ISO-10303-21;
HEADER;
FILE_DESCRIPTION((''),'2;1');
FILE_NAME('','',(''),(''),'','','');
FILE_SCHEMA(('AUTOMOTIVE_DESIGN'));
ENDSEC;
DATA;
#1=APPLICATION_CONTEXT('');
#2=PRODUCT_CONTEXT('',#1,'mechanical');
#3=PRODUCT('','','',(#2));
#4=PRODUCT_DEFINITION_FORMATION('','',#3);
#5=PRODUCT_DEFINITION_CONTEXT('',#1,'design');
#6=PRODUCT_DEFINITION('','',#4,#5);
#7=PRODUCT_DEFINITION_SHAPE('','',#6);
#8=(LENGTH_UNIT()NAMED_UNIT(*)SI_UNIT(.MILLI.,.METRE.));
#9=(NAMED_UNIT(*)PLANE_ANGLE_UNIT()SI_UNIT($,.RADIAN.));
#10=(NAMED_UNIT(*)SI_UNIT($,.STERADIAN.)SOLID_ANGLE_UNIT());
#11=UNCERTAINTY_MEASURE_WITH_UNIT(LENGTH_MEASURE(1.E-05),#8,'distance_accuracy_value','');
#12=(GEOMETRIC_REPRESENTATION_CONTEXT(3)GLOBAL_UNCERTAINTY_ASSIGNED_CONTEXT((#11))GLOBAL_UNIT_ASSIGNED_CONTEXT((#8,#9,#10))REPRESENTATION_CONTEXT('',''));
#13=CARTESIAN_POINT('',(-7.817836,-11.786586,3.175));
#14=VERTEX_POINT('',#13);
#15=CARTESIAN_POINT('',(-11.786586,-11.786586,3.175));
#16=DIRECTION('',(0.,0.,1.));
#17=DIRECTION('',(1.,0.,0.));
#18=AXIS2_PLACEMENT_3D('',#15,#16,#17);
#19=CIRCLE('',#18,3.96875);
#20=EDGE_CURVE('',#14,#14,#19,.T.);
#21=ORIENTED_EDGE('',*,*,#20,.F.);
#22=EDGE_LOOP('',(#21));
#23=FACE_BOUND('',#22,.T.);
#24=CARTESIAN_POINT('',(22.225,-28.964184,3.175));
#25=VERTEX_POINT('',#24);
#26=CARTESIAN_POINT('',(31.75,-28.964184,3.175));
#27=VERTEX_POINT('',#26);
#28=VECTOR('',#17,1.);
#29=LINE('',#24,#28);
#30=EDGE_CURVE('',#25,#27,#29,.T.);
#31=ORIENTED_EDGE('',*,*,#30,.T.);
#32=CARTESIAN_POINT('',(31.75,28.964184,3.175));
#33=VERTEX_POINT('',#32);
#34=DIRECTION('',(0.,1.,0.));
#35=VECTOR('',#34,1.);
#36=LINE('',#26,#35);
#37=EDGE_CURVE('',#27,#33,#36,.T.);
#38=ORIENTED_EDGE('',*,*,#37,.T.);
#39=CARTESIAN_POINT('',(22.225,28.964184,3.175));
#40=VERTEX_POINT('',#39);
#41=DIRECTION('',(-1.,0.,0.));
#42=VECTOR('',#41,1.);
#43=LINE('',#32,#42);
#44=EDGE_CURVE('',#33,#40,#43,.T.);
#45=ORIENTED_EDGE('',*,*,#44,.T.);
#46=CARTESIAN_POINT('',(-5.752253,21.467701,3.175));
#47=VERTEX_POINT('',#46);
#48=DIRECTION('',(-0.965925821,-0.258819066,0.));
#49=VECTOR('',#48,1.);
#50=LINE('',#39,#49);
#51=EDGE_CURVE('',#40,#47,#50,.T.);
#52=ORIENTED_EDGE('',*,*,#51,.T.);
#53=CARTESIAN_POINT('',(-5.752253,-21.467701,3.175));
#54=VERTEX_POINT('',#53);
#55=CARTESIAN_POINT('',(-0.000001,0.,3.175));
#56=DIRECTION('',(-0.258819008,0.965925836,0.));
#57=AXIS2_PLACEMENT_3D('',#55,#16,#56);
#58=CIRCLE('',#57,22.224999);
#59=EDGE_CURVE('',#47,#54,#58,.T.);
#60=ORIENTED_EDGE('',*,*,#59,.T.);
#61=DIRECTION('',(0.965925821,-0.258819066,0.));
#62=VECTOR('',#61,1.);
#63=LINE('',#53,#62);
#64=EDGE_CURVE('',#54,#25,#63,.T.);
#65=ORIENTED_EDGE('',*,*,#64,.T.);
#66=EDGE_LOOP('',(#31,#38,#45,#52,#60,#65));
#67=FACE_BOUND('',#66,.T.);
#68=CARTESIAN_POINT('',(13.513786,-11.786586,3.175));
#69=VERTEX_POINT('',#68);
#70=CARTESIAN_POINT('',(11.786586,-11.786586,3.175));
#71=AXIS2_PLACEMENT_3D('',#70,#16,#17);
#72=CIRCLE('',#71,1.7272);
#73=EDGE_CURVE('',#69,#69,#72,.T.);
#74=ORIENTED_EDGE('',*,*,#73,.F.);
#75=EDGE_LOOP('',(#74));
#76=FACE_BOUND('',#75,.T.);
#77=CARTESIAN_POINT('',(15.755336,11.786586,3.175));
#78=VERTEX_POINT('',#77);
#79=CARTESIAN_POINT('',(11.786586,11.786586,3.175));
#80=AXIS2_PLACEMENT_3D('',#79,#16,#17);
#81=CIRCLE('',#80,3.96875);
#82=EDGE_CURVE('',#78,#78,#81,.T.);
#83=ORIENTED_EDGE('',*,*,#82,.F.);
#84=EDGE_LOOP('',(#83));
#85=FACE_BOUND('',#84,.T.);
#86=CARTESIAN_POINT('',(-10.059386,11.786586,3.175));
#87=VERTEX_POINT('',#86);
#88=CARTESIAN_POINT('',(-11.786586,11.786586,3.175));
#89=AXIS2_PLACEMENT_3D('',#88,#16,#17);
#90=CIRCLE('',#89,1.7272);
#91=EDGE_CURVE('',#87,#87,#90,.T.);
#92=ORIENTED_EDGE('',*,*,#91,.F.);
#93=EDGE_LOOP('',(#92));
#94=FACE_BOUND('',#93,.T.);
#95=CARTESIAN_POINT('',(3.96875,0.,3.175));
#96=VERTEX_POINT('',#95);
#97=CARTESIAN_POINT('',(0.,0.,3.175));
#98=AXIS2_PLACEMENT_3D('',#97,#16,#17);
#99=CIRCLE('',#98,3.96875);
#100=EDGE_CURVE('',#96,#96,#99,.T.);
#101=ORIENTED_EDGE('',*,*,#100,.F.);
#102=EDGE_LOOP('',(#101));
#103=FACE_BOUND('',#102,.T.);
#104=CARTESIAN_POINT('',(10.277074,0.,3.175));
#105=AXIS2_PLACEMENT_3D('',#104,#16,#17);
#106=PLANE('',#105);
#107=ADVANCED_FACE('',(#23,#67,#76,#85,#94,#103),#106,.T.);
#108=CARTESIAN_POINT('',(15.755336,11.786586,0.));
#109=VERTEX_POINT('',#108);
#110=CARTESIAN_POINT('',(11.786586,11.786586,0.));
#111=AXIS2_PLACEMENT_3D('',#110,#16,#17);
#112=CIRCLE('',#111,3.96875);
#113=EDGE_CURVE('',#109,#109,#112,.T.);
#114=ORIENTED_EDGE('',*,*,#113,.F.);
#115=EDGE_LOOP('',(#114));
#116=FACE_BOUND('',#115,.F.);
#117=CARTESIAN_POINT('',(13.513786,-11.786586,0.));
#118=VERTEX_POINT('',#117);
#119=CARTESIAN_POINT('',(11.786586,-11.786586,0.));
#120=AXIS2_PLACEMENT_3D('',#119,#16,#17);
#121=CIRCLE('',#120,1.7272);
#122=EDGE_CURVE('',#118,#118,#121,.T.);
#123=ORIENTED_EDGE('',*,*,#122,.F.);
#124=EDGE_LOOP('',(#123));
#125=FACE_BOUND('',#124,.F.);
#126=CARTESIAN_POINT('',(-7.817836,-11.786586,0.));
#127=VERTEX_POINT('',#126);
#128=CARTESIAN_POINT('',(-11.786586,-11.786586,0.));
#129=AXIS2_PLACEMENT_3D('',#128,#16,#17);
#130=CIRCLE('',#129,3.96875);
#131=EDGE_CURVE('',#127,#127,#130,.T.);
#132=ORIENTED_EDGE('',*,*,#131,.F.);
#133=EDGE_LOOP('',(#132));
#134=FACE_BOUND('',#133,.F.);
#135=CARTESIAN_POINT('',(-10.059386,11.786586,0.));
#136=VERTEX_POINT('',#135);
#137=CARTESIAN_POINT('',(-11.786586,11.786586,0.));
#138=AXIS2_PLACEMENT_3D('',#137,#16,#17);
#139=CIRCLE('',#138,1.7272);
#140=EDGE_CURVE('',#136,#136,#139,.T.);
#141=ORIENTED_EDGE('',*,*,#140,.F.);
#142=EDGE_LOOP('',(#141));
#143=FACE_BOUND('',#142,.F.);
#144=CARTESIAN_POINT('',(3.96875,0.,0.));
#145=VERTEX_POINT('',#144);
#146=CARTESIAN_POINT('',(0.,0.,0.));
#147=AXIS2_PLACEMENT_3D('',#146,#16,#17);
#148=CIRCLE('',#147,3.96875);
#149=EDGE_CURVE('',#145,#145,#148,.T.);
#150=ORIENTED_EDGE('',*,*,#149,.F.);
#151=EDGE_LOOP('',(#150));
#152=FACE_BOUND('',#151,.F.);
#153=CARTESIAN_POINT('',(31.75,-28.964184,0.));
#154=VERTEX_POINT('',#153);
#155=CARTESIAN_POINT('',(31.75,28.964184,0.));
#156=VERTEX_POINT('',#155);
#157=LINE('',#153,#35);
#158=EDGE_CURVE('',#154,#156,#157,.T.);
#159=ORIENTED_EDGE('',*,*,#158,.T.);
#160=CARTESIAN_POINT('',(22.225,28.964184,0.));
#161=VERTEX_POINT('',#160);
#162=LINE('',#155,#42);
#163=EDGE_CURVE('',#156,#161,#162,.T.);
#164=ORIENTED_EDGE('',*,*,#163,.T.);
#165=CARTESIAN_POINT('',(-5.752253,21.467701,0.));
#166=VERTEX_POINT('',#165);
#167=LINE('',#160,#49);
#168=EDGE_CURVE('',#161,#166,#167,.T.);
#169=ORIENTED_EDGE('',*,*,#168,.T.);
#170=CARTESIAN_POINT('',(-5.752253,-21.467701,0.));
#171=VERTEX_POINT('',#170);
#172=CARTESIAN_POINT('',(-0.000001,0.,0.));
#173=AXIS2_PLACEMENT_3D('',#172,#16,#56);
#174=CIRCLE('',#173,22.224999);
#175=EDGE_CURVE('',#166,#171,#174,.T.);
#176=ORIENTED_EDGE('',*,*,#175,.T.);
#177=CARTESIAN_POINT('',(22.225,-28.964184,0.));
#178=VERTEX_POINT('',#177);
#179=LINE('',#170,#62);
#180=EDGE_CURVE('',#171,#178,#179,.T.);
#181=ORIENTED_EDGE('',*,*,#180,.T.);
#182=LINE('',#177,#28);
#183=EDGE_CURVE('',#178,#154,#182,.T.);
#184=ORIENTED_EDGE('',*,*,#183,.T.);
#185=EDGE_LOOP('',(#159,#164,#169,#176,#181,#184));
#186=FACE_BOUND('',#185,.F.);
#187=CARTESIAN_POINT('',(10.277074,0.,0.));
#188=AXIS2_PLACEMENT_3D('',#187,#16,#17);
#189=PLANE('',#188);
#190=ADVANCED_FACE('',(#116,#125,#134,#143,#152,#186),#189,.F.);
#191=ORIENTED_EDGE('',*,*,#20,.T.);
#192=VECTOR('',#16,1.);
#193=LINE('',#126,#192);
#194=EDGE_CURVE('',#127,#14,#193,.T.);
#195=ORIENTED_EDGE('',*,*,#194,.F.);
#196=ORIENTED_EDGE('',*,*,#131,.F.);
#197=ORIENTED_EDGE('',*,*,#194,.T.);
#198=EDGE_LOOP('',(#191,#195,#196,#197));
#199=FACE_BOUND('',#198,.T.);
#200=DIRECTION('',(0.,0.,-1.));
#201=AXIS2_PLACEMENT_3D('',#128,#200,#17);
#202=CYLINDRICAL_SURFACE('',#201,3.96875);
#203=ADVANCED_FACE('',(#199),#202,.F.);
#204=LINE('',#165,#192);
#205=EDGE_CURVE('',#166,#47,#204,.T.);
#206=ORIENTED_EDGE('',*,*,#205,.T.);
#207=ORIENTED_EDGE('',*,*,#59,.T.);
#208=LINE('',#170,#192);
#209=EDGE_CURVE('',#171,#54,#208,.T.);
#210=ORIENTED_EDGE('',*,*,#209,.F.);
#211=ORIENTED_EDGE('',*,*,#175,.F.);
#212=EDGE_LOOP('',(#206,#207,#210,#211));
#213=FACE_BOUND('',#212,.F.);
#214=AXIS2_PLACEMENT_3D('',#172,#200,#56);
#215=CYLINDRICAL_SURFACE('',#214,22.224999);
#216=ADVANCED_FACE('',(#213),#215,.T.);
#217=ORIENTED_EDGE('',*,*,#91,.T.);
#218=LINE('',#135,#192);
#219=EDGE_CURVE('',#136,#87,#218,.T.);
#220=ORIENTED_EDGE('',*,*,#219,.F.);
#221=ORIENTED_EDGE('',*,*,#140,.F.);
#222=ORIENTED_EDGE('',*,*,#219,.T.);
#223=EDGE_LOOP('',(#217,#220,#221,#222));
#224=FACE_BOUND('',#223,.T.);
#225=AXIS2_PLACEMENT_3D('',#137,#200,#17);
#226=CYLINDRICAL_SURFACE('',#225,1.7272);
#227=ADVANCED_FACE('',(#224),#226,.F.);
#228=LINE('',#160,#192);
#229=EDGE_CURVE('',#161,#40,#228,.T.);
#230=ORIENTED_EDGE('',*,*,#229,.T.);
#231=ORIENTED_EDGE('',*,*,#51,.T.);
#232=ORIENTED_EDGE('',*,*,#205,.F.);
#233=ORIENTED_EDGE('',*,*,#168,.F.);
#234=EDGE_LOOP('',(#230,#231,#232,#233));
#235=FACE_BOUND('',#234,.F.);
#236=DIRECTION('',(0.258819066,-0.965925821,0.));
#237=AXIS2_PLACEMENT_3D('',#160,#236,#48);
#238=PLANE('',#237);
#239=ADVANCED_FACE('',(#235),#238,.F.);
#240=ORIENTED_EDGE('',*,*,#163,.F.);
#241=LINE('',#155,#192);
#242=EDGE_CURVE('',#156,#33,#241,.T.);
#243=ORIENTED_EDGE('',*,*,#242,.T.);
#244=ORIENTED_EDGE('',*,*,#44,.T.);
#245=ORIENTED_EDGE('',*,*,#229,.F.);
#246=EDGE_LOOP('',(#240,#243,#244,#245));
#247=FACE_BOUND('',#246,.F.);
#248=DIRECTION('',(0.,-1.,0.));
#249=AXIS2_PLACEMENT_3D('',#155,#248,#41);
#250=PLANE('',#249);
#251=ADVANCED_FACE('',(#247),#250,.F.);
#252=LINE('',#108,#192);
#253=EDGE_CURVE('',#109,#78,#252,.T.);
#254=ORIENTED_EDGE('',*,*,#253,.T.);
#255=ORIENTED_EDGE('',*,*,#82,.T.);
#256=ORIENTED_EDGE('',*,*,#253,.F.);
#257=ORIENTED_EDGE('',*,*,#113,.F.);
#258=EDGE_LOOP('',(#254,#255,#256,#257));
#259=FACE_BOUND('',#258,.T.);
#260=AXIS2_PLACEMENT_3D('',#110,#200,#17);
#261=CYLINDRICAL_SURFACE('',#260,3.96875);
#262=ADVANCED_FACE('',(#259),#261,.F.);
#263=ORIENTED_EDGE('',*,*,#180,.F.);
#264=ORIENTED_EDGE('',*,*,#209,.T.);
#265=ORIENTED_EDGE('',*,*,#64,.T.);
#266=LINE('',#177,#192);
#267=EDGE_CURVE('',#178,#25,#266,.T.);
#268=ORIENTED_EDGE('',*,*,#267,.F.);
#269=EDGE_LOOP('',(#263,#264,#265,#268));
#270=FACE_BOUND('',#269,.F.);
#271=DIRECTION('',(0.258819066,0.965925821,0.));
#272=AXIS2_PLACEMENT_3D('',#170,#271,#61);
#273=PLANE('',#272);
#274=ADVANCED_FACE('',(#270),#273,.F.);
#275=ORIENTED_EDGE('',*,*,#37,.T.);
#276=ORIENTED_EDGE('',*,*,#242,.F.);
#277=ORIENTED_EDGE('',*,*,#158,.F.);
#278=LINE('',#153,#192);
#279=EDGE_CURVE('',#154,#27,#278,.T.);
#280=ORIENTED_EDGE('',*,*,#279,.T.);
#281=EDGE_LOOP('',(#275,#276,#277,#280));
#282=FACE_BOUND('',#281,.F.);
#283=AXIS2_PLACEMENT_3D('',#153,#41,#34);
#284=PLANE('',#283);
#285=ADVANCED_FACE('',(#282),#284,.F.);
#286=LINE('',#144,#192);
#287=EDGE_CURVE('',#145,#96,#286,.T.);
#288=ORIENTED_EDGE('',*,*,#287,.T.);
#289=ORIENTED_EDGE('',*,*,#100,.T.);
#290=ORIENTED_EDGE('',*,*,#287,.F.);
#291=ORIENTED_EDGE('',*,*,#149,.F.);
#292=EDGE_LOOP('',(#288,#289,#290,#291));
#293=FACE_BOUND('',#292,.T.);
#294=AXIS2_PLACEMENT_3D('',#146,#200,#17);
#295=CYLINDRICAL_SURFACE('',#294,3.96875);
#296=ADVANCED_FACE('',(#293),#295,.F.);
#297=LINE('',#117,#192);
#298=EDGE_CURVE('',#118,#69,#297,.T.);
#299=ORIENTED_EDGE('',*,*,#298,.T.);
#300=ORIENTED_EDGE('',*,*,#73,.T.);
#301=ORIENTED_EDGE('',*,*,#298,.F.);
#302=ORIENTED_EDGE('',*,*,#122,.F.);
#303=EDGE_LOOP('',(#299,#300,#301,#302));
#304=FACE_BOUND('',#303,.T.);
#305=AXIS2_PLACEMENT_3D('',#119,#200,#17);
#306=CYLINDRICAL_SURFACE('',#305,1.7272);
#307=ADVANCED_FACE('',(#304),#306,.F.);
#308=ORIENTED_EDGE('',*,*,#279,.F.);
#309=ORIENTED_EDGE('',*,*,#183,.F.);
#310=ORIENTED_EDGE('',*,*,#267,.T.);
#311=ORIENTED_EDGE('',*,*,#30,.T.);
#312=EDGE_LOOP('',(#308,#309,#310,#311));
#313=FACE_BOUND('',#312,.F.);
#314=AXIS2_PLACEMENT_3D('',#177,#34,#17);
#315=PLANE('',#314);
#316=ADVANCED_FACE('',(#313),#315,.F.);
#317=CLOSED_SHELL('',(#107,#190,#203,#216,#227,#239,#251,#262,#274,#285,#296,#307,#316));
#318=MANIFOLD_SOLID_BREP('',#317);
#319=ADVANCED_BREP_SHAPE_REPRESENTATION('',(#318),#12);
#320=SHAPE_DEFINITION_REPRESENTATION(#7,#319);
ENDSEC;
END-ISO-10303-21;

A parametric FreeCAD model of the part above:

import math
import FreeCAD as App
import Part
import Sketcher
Q = App.Units.Quantity

doc = App.newDocument("Part")
params = doc.addObject("Spreadsheet::Sheet", "Params")
for row, (alias, value) in enumerate([
    ("sketch1_diameter", "0.3125 in"),
    ("sketch1_diameter2", "0.136 in"),
    ("sketch1_radius", "0.875 in"),
    ("sketch1_width", "0.375 in"),
    ("pad1_length", "0.125 in"),
], start=1):
    params.set(f"A{row}", alias)
    params.set(f"B{row}", "=" + value)
    params.setAlias(f"B{row}", alias)

body = doc.addObject("PartDesign::Body", "Body")

# Sketch on XY plane
sketch1 = body.newObject("Sketcher::SketchObject", "Sketch")
sketch1.AttachmentSupport = (doc.getObject("XY_Plane"), [""])
sketch1.MapMode = "FlatFace"
sketch1.addGeometry([
    Part.LineSegment(App.Vector(31.8, 29, 0), App.Vector(22.2, 29, 0)),  # 0
    Part.LineSegment(App.Vector(22.2, 29, 0), App.Vector(-5.8, 21.5, 0)),  # 1
    Part.ArcOfCircle(Part.Circle(App.Vector(0, 0, 0), App.Vector(0, 0, 1), 22.2), math.radians(105), math.radians(255)),  # 2
    Part.LineSegment(App.Vector(-5.8, -21.5, 0), App.Vector(22.2, -29, 0)),  # 3
    Part.LineSegment(App.Vector(22.2, -29, 0), App.Vector(31.8, -29, 0)),  # 4
    Part.LineSegment(App.Vector(31.8, -29, 0), App.Vector(31.8, 29, 0)),  # 5
    Part.Circle(App.Vector(-11.8, -11.8, 0), App.Vector(0, 0, 1), 4),  # 6
    Part.Circle(App.Vector(11.8, -11.8, 0), App.Vector(0, 0, 1), 1.7),  # 7
    Part.Circle(App.Vector(-11.8, 11.8, 0), App.Vector(0, 0, 1), 1.7),  # 8
    Part.Circle(App.Vector(0, 0, 0), App.Vector(0, 0, 1), 4),  # 9
    Part.Circle(App.Vector(11.8, 11.8, 0), App.Vector(0, 0, 1), 4),  # 10
], False)
sketch1.addConstraint([
    Sketcher.Constraint("Coincident", 0, 2, 1, 1),
    Sketcher.Constraint("Tangent", 1, 2, 2, 1),
    Sketcher.Constraint("Tangent", 2, 2, 3, 1),
    Sketcher.Constraint("Coincident", 3, 2, 4, 1),
    Sketcher.Constraint("Coincident", 4, 2, 5, 1),
    Sketcher.Constraint("Coincident", 5, 2, 0, 1),
    Sketcher.Constraint("Horizontal", 0),
    Sketcher.Constraint("Horizontal", 4),
    Sketcher.Constraint("Vertical", 5),
    Sketcher.Constraint("Coincident", 2, 3, -1, 1),
    Sketcher.Constraint("Coincident", 9, 3, -1, 1),
    Sketcher.Constraint("Equal", 7, 8),
    Sketcher.Constraint("Equal", 6, 9),
    Sketcher.Constraint("Equal", 9, 10),
    Sketcher.Constraint("Symmetric", 7, 3, 8, 3, -1, 1),
    Sketcher.Constraint("Symmetric", 6, 3, 10, 3, -1, 1),
    Sketcher.Constraint("Symmetric", 6, 3, 7, 3, -2),
    Sketcher.Constraint("Symmetric", 0, 2, 3, 2, -1),
    Sketcher.Constraint("Diameter", 6, Q("0.3125 in")),
    Sketcher.Constraint("Diameter", 7, Q("0.136 in")),
    Sketcher.Constraint("Angle", 1, Q("-164.999999 deg")),
    Sketcher.Constraint("Radius", 2, Q("0.875 in")),
    Sketcher.Constraint("DistanceX", 0, 2, 0, 1, Q("0.375 in")),
    Sketcher.Constraint("DistanceX", -1, 1, 4, 2, Q("1.25 in")),
    Sketcher.Constraint("DistanceX", 6, 3, 7, 3, 23.573172),
    Sketcher.Constraint("DistanceY", 6, 3, 8, 3, 23.573172),
])
sketch1.setExpression("Constraints[18]", "Params.sketch1_diameter")
sketch1.setExpression("Constraints[19]", "Params.sketch1_diameter2")
sketch1.setExpression("Constraints[21]", "Params.sketch1_radius")
sketch1.setExpression("Constraints[22]", "Params.sketch1_width")
pad1 = body.newObject("PartDesign::Pad", "Pad")
pad1.Profile = sketch1
pad1.setExpression("Length", "Params.pad1_length")

doc.recompute()
